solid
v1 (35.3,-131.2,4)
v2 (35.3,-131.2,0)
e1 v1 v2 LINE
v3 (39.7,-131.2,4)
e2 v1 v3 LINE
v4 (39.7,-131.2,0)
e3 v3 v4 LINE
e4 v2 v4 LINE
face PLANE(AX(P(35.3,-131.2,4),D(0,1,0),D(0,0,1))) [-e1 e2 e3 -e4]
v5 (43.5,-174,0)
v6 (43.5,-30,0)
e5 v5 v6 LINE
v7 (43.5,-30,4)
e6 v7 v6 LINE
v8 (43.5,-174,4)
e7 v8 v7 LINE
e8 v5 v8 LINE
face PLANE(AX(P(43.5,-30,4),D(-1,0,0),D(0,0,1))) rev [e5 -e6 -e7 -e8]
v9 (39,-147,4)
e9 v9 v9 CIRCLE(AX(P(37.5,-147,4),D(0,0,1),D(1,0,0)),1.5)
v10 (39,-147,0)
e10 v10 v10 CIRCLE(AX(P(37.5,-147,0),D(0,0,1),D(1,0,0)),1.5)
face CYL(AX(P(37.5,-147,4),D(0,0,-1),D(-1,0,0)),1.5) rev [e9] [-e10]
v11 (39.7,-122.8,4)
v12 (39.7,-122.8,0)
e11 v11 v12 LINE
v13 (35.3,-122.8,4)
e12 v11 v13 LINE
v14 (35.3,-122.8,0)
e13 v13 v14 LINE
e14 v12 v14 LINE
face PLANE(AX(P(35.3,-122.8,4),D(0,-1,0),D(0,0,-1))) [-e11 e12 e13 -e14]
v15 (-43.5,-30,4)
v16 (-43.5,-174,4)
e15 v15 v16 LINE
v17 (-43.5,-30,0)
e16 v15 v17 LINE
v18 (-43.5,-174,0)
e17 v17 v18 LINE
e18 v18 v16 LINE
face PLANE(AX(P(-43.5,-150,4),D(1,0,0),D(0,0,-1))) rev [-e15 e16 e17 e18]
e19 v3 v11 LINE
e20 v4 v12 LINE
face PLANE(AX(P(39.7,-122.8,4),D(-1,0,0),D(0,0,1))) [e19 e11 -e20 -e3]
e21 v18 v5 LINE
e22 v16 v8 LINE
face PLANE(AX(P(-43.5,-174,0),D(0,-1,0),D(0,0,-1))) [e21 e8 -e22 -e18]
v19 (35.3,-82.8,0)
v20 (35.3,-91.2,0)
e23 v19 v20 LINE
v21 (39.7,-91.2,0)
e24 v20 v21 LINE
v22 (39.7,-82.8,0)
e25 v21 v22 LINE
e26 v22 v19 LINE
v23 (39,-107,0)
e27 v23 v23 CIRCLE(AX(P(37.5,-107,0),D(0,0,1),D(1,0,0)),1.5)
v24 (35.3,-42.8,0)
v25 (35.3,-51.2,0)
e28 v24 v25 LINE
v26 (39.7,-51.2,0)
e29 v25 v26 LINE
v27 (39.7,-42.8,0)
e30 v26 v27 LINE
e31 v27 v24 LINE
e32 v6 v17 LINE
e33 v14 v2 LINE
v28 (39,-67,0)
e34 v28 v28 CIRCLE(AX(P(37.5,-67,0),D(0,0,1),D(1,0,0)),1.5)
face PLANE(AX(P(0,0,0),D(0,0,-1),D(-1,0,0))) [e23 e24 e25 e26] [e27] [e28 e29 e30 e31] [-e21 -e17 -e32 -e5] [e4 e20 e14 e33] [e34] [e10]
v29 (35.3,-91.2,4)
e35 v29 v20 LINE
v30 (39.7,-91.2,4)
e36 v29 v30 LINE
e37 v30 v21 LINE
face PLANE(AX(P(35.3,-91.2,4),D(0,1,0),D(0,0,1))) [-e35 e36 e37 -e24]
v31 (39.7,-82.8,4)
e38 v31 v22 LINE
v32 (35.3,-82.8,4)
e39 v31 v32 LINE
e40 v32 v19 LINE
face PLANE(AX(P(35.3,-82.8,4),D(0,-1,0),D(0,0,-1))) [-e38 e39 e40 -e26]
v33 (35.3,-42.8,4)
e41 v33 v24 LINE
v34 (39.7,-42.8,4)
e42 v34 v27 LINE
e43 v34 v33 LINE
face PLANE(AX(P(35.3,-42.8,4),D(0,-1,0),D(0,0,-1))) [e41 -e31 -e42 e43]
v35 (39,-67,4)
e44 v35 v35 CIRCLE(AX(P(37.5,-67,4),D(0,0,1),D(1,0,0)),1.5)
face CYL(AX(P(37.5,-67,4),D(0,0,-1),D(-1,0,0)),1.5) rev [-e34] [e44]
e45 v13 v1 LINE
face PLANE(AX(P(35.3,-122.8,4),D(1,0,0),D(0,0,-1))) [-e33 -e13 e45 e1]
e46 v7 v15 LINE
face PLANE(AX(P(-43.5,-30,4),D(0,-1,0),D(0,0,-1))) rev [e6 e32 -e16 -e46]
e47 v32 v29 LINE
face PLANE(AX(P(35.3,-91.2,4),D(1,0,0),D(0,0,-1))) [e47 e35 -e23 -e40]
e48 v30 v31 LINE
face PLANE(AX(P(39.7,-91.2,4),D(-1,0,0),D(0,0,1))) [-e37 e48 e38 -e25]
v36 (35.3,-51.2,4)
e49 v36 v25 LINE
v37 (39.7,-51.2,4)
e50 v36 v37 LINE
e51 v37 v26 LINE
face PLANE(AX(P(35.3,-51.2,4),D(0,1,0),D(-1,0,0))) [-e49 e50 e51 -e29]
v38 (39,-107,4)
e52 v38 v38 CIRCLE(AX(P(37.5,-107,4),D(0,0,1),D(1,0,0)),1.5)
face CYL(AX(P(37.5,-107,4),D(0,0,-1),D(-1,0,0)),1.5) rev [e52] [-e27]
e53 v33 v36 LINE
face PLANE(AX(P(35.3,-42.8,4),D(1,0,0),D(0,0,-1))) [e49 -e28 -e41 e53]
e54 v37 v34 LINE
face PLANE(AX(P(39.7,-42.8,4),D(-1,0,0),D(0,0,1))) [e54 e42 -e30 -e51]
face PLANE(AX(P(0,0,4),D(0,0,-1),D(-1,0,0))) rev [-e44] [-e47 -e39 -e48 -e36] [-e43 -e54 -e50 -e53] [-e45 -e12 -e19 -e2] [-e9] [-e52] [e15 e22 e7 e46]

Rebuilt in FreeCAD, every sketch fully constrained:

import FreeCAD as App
import Part
import Sketcher

doc = App.newDocument("Part")
body = doc.addObject("PartDesign::Body", "Body")

# Sketch on XY plane
sketch1 = body.newObject("Sketcher::SketchObject", "Sketch")
sketch1.AttachmentSupport = (doc.getObject("XY_Plane"), [""])
sketch1.MapMode = "FlatFace"
sketch1.addGeometry([
    Part.LineSegment(App.Vector(43.5, -154, 0), App.Vector(43.5, -30, 0)),  # 0
    Part.LineSegment(App.Vector(43.5, -30, 0), App.Vector(-43.5, -30, 0)),  # 1
    Part.LineSegment(App.Vector(-43.5, -30, 0), App.Vector(-43.5, -154, 0)),  # 2
    Part.LineSegment(App.Vector(-43.5, -154, 0), App.Vector(43.5, -154, 0)),  # 3
    Part.Circle(App.Vector(37.5, -147, 0), App.Vector(0, 0, 1), 1.5),  # 4
    Part.LineSegment(App.Vector(35.3, -131.2, 0), App.Vector(35.3, -122.8, 0)),  # 5
    Part.LineSegment(App.Vector(35.3, -122.8, 0), App.Vector(39.7, -122.8, 0)),  # 6
    Part.LineSegment(App.Vector(39.7, -122.8, 0), App.Vector(39.7, -131.2, 0)),  # 7
    Part.LineSegment(App.Vector(39.7, -131.2, 0), App.Vector(35.3, -131.2, 0)),  # 8
    Part.Circle(App.Vector(37.5, -107, 0), App.Vector(0, 0, 1), 1.5),  # 9
    Part.LineSegment(App.Vector(35.3, -91.2, 0), App.Vector(35.3, -82.8, 0)),  # 10
    Part.LineSegment(App.Vector(35.3, -82.8, 0), App.Vector(39.7, -82.8, 0)),  # 11
    Part.LineSegment(App.Vector(39.7, -82.8, 0), App.Vector(39.7, -91.2, 0)),  # 12
    Part.LineSegment(App.Vector(39.7, -91.2, 0), App.Vector(35.3, -91.2, 0)),  # 13
    Part.Circle(App.Vector(37.5, -67, 0), App.Vector(0, 0, 1), 1.5),  # 14
    Part.LineSegment(App.Vector(35.3, -51.2, 0), App.Vector(35.3, -42.8, 0)),  # 15
    Part.LineSegment(App.Vector(35.3, -42.8, 0), App.Vector(39.7, -42.8, 0)),  # 16
    Part.LineSegment(App.Vector(39.7, -42.8, 0), App.Vector(39.7, -51.2, 0)),  # 17
    Part.LineSegment(App.Vector(39.7, -51.2, 0), App.Vector(35.3, -51.2, 0)),  # 18
], False)
sketch1.addConstraint([
    Sketcher.Constraint("Coincident", 0, 2, 1, 1),
    Sketcher.Constraint("Coincident", 1, 2, 2, 1),
    Sketcher.Constraint("Coincident", 2, 2, 3, 1),
    Sketcher.Constraint("Coincident", 3, 2, 0, 1),
    Sketcher.Constraint("Coincident", 5, 2, 6, 1),
    Sketcher.Constraint("Coincident", 6, 2, 7, 1),
    Sketcher.Constraint("Coincident", 7, 2, 8, 1),
    Sketcher.Constraint("Coincident", 8, 2, 5, 1),
    Sketcher.Constraint("Coincident", 10, 2, 11, 1),
    Sketcher.Constraint("Coincident", 11, 2, 12, 1),
    Sketcher.Constraint("Coincident", 12, 2, 13, 1),
    Sketcher.Constraint("Coincident", 13, 2, 10, 1),
    Sketcher.Constraint("Coincident", 15, 2, 16, 1),
    Sketcher.Constraint("Coincident", 16, 2, 17, 1),
    Sketcher.Constraint("Coincident", 17, 2, 18, 1),
    Sketcher.Constraint("Coincident", 18, 2, 15, 1),
    Sketcher.Constraint("Vertical", 0),
    Sketcher.Constraint("Horizontal", 1),
    Sketcher.Constraint("Vertical", 2),
    Sketcher.Constraint("Horizontal", 3),
    Sketcher.Constraint("Vertical", 5),
    Sketcher.Constraint("Horizontal", 6),
    Sketcher.Constraint("Vertical", 7),
    Sketcher.Constraint("Horizontal", 8),
    Sketcher.Constraint("Vertical", 10),
    Sketcher.Constraint("Horizontal", 11),
    Sketcher.Constraint("Vertical", 12),
    Sketcher.Constraint("Horizontal", 13),
    Sketcher.Constraint("Vertical", 15),
    Sketcher.Constraint("Horizontal", 16),
    Sketcher.Constraint("Vertical", 17),
    Sketcher.Constraint("Horizontal", 18),
    Sketcher.Constraint("Equal", 4, 9),
    Sketcher.Constraint("Equal", 9, 14),
    Sketcher.Constraint("Vertical", 4, 3, 9, 3),
    Sketcher.Constraint("Vertical", 9, 3, 14, 3),
    Sketcher.Constraint("Vertical", 8, 2, 10, 2),
    Sketcher.Constraint("Vertical", 7, 2, 11, 2),
    Sketcher.Constraint("Vertical", 13, 2, 15, 2),
    Sketcher.Constraint("Vertical", 12, 2, 16, 2),
    Sketcher.Constraint("Equal", 7, 10),
    Sketcher.Constraint("Equal", 12, 15),
    Sketcher.Constraint("Diameter", 4, 3.0),
    Sketcher.Constraint("DistanceX", 1, 2, 1, 1, 87.0),
    Sketcher.Constraint("DistanceY", 0, 1, 0, 2, 124.0),
    Sketcher.Constraint("DistanceX", 6, 1, 6, 2, 4.4),
    Sketcher.Constraint("DistanceY", 5, 1, 5, 2, 8.4),
    Sketcher.Constraint("DistanceY", 4, 3, -1, 1, 147.0),
    Sketcher.Constraint("DistanceY", 9, 3, -1, 1, 107.0),
    Sketcher.Constraint("DistanceY", 14, 3, -1, 1, 67.0),
    Sketcher.Constraint("DistanceY", 0, 2, -1, 1, 30.0),
    Sketcher.Constraint("DistanceX", 14, 3, 0, 2, 6.0),
    Sketcher.Constraint("DistanceY", 5, 2, 10, 2, 40.0),
    Sketcher.Constraint("DistanceY", 10, 2, 15, 2, 40.0),
    Sketcher.Constraint("DistanceX", -1, 1, 4, 3, 37.5),
    Sketcher.Constraint("DistanceX", -1, 1, 5, 2, 35.3),
    Sketcher.Constraint("DistanceY", 5, 2, -1, 1, 122.8),
])
pad1 = body.newObject("PartDesign::Pad", "Pad")
pad1.Profile = sketch1
pad1.Length = 4

# Sketch on XY plane
sketch2 = body.newObject("Sketcher::SketchObject", "Sketch001")
sketch2.AttachmentSupport = (doc.getObject("XY_Plane"), [""])
sketch2.MapMode = "FlatFace"
sketch2.AttachmentOffset = App.Placement(App.Vector(0, 0, 4), App.Rotation())
sketch2.addGeometry([
    Part.LineSegment(App.Vector(-44, -154, 0), App.Vector(-44, -174, 0)),
    Part.LineSegment(App.Vector(-44, -174, 0), App.Vector(44, -174, 0)),
    Part.LineSegment(App.Vector(44, -174, 0), App.Vector(44, -154, 0)),
    Part.LineSegment(App.Vector(44, -154, 0), App.Vector(-44, -154, 0)),
], False)
sketch2.addConstraint([
    Sketcher.Constraint("Coincident", 0, 2, 1, 1),
    Sketcher.Constraint("Coincident", 1, 2, 2, 1),
    Sketcher.Constraint("Coincident", 2, 2, 3, 1),
    Sketcher.Constraint("Coincident", 3, 2, 0, 1),
    Sketcher.Constraint("Vertical", 0),
    Sketcher.Constraint("Horizontal", 1),
    Sketcher.Constraint("Vertical", 2),
    Sketcher.Constraint("Horizontal", 3),
    Sketcher.Constraint("DistanceX", 1, 1, 1, 2, 87.0),
    Sketcher.Constraint("DistanceY", 0, 2, 0, 1, 20.0),
    Sketcher.Constraint("DistanceY", 0, 2, -1, 1, 174.0),
    Sketcher.Constraint("DistanceX", 0, 2, -1, 1, 43.5),
])
pad2 = body.newObject("PartDesign::Pad", "Pad001")
pad2.Profile = sketch2
pad2.Length = 4
pad2.Reversed = True

doc.recompute()
